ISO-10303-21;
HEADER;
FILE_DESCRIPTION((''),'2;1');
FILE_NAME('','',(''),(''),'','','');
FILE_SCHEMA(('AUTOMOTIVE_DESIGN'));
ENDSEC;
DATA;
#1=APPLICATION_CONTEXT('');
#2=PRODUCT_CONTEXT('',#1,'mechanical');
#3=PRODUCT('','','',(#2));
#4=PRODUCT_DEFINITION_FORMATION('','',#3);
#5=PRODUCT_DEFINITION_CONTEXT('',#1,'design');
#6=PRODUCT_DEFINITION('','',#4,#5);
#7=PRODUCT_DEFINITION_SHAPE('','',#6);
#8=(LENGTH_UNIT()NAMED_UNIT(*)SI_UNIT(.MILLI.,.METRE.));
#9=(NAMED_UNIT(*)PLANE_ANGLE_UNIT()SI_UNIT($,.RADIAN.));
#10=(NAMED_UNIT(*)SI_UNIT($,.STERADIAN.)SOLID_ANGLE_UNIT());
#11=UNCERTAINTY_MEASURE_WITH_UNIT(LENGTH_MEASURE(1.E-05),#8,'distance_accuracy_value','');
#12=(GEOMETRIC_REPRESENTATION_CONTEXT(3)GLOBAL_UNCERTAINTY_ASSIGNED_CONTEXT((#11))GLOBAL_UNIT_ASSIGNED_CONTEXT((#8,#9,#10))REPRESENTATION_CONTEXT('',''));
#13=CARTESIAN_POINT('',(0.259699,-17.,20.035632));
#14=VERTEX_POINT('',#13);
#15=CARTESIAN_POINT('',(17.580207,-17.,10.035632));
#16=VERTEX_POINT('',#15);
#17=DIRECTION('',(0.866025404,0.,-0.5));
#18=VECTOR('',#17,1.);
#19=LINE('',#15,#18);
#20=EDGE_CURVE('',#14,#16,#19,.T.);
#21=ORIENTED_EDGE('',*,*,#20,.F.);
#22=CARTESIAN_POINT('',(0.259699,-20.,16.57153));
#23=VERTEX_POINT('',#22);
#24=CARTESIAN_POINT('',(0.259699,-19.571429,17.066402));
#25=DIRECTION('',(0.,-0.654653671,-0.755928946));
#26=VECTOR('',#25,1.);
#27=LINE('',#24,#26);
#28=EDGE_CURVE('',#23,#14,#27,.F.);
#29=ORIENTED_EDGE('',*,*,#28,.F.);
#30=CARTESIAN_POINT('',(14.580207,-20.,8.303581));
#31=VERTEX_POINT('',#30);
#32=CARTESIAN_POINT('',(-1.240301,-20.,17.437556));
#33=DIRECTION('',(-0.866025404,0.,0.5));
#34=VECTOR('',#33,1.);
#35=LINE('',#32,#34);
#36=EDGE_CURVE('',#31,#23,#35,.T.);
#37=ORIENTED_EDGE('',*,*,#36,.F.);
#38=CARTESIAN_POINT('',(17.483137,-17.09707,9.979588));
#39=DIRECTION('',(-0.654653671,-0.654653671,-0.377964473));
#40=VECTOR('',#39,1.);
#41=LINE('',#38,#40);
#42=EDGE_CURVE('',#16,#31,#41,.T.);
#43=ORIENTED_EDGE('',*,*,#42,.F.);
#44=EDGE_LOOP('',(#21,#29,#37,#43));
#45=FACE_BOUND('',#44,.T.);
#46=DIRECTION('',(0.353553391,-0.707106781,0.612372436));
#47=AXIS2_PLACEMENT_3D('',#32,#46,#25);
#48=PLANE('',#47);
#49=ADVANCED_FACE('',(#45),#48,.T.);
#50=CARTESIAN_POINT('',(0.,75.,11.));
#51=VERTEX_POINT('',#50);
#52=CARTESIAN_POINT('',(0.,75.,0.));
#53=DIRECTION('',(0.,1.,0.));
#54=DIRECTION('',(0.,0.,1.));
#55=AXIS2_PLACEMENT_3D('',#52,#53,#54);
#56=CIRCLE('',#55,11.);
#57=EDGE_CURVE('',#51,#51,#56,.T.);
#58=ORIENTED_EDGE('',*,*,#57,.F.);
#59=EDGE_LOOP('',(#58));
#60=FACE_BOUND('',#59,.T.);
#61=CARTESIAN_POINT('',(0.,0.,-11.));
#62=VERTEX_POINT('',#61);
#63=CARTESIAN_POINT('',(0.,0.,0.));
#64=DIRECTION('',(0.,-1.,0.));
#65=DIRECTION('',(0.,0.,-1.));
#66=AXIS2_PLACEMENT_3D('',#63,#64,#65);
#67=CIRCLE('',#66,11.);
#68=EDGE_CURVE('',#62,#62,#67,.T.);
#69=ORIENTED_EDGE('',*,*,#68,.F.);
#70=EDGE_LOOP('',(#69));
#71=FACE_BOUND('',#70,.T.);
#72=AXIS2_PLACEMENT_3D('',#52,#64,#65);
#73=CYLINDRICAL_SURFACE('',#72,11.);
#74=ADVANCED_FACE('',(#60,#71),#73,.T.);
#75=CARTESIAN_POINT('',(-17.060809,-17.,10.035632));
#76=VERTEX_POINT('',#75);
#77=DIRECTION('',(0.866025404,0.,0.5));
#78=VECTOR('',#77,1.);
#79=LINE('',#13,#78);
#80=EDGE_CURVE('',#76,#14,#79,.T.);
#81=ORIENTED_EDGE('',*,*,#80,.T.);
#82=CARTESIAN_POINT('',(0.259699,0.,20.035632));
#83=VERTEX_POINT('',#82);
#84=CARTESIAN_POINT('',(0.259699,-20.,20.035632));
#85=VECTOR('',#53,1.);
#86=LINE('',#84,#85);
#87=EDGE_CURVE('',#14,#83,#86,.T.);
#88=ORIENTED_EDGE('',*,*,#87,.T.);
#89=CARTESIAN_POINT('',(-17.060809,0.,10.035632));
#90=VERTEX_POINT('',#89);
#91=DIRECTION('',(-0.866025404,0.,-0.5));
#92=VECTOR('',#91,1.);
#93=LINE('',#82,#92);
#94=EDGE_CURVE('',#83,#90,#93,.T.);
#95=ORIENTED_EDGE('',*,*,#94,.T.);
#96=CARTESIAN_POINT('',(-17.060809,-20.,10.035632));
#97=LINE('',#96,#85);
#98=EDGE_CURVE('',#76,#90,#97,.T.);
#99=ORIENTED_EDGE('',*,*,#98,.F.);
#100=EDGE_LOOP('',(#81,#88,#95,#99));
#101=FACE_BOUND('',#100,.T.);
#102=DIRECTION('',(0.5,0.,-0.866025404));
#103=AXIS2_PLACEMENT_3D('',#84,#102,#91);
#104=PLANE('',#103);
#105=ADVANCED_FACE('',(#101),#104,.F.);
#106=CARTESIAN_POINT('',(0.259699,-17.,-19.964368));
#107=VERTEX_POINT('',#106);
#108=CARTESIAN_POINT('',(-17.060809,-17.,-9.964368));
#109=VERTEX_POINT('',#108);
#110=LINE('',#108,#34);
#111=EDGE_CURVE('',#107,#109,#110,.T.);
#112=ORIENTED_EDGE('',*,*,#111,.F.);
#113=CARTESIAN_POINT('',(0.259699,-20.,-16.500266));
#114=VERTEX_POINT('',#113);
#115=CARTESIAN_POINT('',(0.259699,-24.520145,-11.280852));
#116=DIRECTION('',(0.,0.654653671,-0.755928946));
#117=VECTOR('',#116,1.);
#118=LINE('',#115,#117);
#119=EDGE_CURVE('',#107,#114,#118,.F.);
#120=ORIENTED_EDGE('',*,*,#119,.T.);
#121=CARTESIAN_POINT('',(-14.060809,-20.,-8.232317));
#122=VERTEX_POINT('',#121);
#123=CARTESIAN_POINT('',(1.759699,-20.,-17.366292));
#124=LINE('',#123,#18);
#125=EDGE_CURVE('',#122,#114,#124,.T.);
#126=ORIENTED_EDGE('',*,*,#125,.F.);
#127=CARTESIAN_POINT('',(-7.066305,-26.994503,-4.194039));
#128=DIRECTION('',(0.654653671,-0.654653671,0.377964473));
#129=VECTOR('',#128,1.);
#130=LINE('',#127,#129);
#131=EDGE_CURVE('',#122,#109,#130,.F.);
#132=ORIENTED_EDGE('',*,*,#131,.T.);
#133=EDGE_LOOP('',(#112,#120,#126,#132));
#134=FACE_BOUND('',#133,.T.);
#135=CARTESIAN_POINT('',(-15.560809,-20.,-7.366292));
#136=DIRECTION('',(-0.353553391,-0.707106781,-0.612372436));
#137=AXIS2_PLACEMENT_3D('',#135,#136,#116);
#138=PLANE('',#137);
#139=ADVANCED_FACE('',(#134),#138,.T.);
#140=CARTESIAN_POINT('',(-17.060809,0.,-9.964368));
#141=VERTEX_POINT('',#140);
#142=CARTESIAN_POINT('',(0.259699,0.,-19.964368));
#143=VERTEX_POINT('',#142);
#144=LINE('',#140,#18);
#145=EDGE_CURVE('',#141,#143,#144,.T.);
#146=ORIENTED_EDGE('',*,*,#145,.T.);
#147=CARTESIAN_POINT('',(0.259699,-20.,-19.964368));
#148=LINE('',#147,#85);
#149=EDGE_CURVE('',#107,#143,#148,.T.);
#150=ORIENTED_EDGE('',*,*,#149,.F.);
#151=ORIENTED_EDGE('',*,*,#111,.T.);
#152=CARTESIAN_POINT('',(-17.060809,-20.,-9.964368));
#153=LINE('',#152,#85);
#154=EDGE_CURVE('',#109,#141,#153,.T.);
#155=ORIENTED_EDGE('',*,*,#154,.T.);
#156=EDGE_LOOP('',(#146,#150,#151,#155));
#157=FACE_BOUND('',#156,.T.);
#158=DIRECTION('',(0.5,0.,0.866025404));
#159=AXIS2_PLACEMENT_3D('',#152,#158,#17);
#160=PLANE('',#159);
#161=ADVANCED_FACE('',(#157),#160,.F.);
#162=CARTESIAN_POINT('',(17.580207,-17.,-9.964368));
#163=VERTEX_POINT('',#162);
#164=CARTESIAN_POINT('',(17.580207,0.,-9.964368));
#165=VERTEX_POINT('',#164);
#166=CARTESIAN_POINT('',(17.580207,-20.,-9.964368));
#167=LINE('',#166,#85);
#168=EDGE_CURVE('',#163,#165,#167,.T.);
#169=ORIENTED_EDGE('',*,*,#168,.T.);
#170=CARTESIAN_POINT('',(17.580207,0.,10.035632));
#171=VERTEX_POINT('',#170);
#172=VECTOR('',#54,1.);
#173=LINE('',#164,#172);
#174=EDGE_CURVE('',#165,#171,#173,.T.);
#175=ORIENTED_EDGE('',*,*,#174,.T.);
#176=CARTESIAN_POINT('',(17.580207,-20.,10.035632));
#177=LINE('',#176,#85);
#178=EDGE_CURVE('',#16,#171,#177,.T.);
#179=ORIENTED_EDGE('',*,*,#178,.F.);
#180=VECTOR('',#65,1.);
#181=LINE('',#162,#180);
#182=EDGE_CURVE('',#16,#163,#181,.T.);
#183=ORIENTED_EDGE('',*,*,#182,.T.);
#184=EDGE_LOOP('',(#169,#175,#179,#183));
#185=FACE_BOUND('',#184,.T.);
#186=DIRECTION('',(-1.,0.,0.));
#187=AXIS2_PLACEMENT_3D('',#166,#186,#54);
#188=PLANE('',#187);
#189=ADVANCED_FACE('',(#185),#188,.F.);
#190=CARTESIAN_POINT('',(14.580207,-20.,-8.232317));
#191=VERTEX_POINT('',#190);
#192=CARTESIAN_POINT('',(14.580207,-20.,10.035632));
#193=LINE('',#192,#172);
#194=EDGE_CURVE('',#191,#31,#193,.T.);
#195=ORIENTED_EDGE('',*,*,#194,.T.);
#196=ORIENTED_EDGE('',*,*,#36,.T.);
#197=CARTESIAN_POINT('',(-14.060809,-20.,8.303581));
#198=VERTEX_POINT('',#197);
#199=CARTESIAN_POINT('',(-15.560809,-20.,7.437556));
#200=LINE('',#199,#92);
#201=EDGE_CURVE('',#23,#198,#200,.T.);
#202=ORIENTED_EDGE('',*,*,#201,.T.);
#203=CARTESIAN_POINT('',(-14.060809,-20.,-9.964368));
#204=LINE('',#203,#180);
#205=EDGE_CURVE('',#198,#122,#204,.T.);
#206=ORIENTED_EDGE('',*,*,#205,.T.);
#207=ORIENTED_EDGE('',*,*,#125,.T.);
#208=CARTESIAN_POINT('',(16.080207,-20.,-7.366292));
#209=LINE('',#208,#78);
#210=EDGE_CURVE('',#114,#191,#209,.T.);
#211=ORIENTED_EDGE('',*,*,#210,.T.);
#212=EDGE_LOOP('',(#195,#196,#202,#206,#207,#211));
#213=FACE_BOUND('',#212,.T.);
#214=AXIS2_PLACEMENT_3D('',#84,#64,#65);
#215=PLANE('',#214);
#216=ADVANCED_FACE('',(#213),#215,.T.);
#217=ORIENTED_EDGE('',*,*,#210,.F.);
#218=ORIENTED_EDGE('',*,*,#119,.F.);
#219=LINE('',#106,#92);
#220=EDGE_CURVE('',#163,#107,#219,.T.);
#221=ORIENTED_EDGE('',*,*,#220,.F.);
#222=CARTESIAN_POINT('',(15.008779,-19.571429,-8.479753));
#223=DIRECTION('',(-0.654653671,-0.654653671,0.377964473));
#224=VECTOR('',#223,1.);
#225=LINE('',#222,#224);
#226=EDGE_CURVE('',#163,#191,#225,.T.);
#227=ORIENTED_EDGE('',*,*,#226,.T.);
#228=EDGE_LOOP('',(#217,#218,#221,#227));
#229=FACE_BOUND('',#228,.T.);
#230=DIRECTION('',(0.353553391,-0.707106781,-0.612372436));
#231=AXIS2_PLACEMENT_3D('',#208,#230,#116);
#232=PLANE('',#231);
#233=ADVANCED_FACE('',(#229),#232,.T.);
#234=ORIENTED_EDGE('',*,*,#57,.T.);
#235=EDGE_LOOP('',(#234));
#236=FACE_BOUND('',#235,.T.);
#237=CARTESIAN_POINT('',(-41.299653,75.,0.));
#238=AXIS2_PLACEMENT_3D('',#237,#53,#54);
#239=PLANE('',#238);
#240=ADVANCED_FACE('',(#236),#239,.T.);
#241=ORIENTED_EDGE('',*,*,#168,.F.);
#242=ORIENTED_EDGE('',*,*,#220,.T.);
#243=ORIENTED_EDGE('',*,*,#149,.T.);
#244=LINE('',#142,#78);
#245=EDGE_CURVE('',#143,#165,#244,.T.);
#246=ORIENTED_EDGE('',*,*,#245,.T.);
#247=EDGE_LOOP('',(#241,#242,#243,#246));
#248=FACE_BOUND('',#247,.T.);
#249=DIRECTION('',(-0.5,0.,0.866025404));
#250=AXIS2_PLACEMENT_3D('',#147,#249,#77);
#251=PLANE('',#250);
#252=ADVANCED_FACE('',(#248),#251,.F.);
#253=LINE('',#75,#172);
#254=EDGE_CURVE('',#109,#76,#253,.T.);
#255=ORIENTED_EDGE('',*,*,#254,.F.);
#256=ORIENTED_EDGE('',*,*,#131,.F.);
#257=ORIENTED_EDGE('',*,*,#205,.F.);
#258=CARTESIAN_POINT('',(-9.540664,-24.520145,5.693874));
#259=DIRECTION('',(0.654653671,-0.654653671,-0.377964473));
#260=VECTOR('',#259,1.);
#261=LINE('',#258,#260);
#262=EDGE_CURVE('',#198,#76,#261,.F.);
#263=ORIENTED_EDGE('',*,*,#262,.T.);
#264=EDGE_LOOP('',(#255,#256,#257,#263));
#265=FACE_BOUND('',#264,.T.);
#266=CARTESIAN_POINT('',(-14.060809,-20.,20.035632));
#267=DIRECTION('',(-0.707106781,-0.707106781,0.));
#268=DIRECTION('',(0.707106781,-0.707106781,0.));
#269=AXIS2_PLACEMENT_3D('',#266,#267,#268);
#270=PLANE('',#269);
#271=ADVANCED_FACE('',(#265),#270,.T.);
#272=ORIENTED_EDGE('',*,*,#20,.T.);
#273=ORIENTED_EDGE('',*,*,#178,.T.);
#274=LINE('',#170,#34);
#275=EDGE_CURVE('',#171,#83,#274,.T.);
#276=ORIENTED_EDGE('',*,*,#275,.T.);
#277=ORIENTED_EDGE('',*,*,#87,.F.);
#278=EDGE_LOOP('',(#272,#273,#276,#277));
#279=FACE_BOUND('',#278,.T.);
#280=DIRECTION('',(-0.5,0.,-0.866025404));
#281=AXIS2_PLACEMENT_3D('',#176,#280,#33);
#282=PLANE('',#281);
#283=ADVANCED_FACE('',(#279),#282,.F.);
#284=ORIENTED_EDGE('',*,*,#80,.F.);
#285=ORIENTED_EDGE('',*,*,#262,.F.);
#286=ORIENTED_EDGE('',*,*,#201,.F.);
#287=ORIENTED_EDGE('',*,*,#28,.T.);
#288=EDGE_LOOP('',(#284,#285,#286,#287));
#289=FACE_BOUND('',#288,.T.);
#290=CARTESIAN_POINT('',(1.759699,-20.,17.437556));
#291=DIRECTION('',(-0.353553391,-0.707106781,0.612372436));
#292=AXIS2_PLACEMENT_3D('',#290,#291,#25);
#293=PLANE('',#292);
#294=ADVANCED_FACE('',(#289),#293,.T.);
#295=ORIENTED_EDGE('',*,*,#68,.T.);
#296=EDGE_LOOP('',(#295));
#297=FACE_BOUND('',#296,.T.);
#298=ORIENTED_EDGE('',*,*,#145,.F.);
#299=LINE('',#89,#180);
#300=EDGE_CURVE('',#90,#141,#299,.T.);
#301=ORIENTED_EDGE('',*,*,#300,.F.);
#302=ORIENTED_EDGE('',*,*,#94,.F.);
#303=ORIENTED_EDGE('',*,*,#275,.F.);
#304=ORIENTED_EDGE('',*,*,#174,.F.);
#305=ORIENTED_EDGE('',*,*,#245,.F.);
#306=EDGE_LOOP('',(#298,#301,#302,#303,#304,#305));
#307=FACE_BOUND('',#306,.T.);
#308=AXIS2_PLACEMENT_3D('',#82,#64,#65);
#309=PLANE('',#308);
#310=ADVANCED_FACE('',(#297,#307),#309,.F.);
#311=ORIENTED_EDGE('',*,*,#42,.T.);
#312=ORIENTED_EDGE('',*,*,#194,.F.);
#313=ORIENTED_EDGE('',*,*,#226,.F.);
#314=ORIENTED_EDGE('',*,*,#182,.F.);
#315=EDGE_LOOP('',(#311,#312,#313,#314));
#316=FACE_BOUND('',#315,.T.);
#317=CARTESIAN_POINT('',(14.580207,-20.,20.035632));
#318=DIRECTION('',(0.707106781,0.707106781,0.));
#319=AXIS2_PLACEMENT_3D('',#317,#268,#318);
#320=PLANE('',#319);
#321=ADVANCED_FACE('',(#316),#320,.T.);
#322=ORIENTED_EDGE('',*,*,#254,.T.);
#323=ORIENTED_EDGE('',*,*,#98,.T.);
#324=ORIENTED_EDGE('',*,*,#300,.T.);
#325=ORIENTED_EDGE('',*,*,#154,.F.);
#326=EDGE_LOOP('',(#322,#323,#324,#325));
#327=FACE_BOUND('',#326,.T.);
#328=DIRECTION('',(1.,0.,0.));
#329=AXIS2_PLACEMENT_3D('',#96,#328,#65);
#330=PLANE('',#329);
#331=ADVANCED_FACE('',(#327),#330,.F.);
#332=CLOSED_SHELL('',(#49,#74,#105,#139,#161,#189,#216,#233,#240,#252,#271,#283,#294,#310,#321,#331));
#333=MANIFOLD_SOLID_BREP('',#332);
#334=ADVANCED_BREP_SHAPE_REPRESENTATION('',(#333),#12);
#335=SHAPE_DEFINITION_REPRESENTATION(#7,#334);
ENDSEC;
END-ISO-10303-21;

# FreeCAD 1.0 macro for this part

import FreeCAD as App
import Part
import Sketcher

V = App.Vector
Q = App.Units.Quantity


def edges_at(feature, points):
    """Names of the edges that pass closest to the given points."""
    edges = feature.Shape.Edges
    near = lambda p: min(range(len(edges)), key=lambda i: edges[i].distToShape(Part.Vertex(*p))[0])
    return sorted({f"Edge{near(p) + 1}" for p in points})

doc = App.newDocument("Part")
body = doc.addObject("PartDesign::Body", "Body")

# Sketch on XZ plane
sketch1 = doc.addObject("Sketcher::SketchObject", "Sketch")
body.addObject(sketch1)
sketch1.AttachmentSupport = (doc.XZ_Plane, [""])
sketch1.MapMode = "FlatFace"
sketch1.addGeometry(Part.Circle(V(0, 0, 0), V(0, 0, 1), 11), False)
sketch1.addConstraint([
    Sketcher.Constraint("Coincident", 0, 3, -1, 1),
    Sketcher.Constraint("Diameter", 0, 22.0),
])
pad1 = doc.addObject("PartDesign::Pad", "Pad")
body.addObject(pad1)
pad1.Profile = sketch1
pad1.Length = 75
pad1.Reversed = True

# Sketch on XZ plane
sketch2 = doc.addObject("Sketcher::SketchObject", "Sketch001")
body.addObject(sketch2)
sketch2.AttachmentSupport = (doc.XZ_Plane, [""])
sketch2.MapMode = "FlatFace"
sketch2.addGeometry([
    Part.LineSegment(V(0, 20, 0), V(-17, 10, 0)),  # 0
    Part.LineSegment(V(-17, 10, 0), V(-17, -10, 0)),  # 1
    Part.LineSegment(V(-17, -10, 0), V(0, -20, 0)),  # 2
    Part.LineSegment(V(0, -20, 0), V(18, -10, 0)),  # 3
    Part.LineSegment(V(18, -10, 0), V(18, 10, 0)),  # 4
    Part.LineSegment(V(18, 10, 0), V(0, 20, 0)),  # 5
], False)
sketch2.addConstraint([
    Sketcher.Constraint("Coincident", 0, 2, 1, 1),
    Sketcher.Constraint("Coincident", 1, 2, 2, 1),
    Sketcher.Constraint("Coincident", 2, 2, 3, 1),
    Sketcher.Constraint("Coincident", 3, 2, 4, 1),
    Sketcher.Constraint("Coincident", 4, 2, 5, 1),
    Sketcher.Constraint("Coincident", 5, 2, 0, 1),
    Sketcher.Constraint("Vertical", 1),
    Sketcher.Constraint("Vertical", 4),
    Sketcher.Constraint("Parallel", 0, 3),
    Sketcher.Constraint("Parallel", 2, 5),
    Sketcher.Constraint("Horizontal", 1, 2, 3, 2),
    Sketcher.Constraint("Horizontal", 0, 2, 4, 2),
    Sketcher.Constraint("Vertical", 2, 2, 5, 2),
    Sketcher.Constraint("DistanceY", 1, 2, 1, 1, 20.0),
    Sketcher.Constraint("Angle", 0, Q("-150 deg")),
    Sketcher.Constraint("Distance", 0, 20.0),
    Sketcher.Constraint("DistanceX", -1, 1, 2, 2, 0.259699),
    Sketcher.Constraint("DistanceY", -1, 1, 0, 2, 10.035632),
])
pad2 = doc.addObject("PartDesign::Pad", "Pad001")
body.addObject(pad2)
pad2.Profile = sketch2
pad2.Length = 20
doc.recompute()

chamfer = doc.addObject("PartDesign::Chamfer", "Chamfer")
body.addObject(chamfer)
chamfer.Base = (pad2, edges_at(pad2, [
    (8.92, -20, 15.036),
    (-8.401, -20, 15.036),
    (-17.061, -20, 0.036),
    (-8.401, -20, -14.964),
    (8.92, -20, -14.964),
    (17.58, -20, 0.036),
]))
chamfer.Size = 3

doc.recompute()
